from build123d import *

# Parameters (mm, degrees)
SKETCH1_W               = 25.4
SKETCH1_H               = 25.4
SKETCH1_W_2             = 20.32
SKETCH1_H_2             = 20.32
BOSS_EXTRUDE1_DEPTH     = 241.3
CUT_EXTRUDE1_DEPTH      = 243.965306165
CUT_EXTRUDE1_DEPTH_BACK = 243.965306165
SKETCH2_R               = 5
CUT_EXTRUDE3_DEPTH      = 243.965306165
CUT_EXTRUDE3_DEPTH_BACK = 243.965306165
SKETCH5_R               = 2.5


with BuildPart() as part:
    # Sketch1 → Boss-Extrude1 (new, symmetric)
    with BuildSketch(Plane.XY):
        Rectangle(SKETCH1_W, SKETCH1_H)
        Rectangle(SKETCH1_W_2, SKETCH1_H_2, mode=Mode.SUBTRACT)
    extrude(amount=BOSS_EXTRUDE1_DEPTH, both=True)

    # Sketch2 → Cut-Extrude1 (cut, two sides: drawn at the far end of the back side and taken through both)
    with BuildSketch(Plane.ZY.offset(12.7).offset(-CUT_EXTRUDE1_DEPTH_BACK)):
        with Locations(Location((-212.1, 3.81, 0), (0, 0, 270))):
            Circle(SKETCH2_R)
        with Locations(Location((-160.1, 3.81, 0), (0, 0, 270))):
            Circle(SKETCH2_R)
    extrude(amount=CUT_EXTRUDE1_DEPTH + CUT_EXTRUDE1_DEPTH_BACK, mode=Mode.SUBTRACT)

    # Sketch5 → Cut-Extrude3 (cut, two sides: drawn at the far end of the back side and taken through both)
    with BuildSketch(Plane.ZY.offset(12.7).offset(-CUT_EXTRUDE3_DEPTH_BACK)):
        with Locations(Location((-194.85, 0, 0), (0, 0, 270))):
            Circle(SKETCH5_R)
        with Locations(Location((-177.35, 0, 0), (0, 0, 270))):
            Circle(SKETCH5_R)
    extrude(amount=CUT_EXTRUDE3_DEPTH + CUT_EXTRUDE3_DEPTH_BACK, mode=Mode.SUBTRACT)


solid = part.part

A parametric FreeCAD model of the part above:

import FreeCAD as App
import Part
import Sketcher

V = App.Vector
Q = App.Units.Quantity

doc = App.newDocument("Part")
body = doc.addObject("PartDesign::Body", "Body")

sketch1 = body.newObject("Sketcher::SketchObject", "Sketch")
sketch1.AttachmentSupport = (doc.getObject("XY_Plane"), [""])
sketch1.MapMode = "FlatFace"
sketch1.addGeometry([
    Part.LineSegment(V(-13, 13, 0), V(-13, -13, 0)),
    Part.LineSegment(V(-13, -13, 0), V(13, -13, 0)),
    Part.LineSegment(V(13, -13, 0), V(13, 13, 0)),
    Part.LineSegment(V(13, 13, 0), V(-13, 13, 0)),
    Part.LineSegment(V(10, -10, 0), V(-10, -10, 0)),
    Part.LineSegment(V(-10, -10, 0), V(-10, 10, 0)),
    Part.LineSegment(V(-10, 10, 0), V(10, 10, 0)),
    Part.LineSegment(V(10, 10, 0), V(10, -10, 0)),
], False)
sketch1.addConstraint([
    Sketcher.Constraint("Coincident", 0, 2, 1, 1),
    Sketcher.Constraint("Coincident", 1, 2, 2, 1),
    Sketcher.Constraint("Coincident", 2, 2, 3, 1),
    Sketcher.Constraint("Coincident", 3, 2, 0, 1),
    Sketcher.Constraint("Coincident", 4, 2, 5, 1),
    Sketcher.Constraint("Coincident", 5, 2, 6, 1),
    Sketcher.Constraint("Coincident", 6, 2, 7, 1),
    Sketcher.Constraint("Coincident", 7, 2, 4, 1),
    Sketcher.Constraint("Vertical", 0),
    Sketcher.Constraint("Horizontal", 1),
    Sketcher.Constraint("Vertical", 2),
    Sketcher.Constraint("Horizontal", 3),
    Sketcher.Constraint("Horizontal", 4),
    Sketcher.Constraint("Vertical", 5),
    Sketcher.Constraint("Horizontal", 6),
    Sketcher.Constraint("Vertical", 7),
    Sketcher.Constraint("Symmetric", 0, 2, 2, 2, -1, 1),
    Sketcher.Constraint("Symmetric", 4, 2, 6, 2, -1, 1),
    Sketcher.Constraint("Equal", 3, 0),
    Sketcher.Constraint("Equal", 6, 5),
    Sketcher.Constraint("DistanceX", 1, 1, 1, 2, Q("1 in")),
    Sketcher.Constraint("DistanceX", 4, 2, 4, 1, Q("0.8 in")),
])
pad1 = body.newObject("PartDesign::Pad", "Pad")
pad1.Profile = sketch1
pad1.Length = Q("19 in")
pad1.Midplane = True

sketch2 = body.newObject("Sketcher::SketchObject", "Sketch001")
sketch2.AttachmentSupport = (doc.getObject("YZ_Plane"), [""])
sketch2.MapMode = "FlatFace"
sketch2.AttachmentOffset = App.Placement(V(0, 0, -0.5 * 25.4), App.Rotation())
sketch2.addGeometry([
    Part.Circle(V(4, -212, 0), V(0, 0, 1), 5),
    Part.Circle(V(4, -160, 0), V(0, 0, 1), 5),
], False)
sketch2.addConstraint([
    Sketcher.Constraint("Equal", 0, 1),
    Sketcher.Constraint("Vertical", 0, 3, 1, 3),
    Sketcher.Constraint("Diameter", 0, Q("10 mm")),
    Sketcher.Constraint("DistanceX", -1, 1, 0, 3, Q("0.15 in")),
    Sketcher.Constraint("DistanceY", 0, 3, -1, 1, Q("212.1 mm")),
    Sketcher.Constraint("DistanceY", 1, 3, -1, 1, Q("160.1 mm")),
])
pocket1 = body.newObject("PartDesign::Pocket", "Pocket")
pocket1.Profile = sketch2
pocket1.Type = "ThroughAll"
pocket1.Midplane = True

sketch3 = body.newObject("Sketcher::SketchObject", "Sketch002")
sketch3.AttachmentSupport = (doc.getObject("YZ_Plane"), [""])
sketch3.MapMode = "FlatFace"
sketch3.AttachmentOffset = App.Placement(V(0, 0, -0.5 * 25.4), App.Rotation())
sketch3.addGeometry([
    Part.Circle(V(0, -194.8, 0), V(0, 0, 1), 2.5),
    Part.Circle(V(0, -177.3, 0), V(0, 0, 1), 2.5),
], False)
sketch3.addConstraint([
    Sketcher.Constraint("Equal", 0, 1),
    Sketcher.Constraint("PointOnObject", 0, 3, -2),
    Sketcher.Constraint("PointOnObject", 1, 3, -2),
    Sketcher.Constraint("Diameter", 0, Q("5 mm")),
    Sketcher.Constraint("DistanceY", 0, 3, -1, 1, Q("194.85 mm")),
    Sketcher.Constraint("DistanceY", 1, 3, -1, 1, Q("177.35 mm")),
])
pocket2 = body.newObject("PartDesign::Pocket", "Pocket001")
pocket2.Profile = sketch3
pocket2.Type = "ThroughAll"
pocket2.Midplane = True

doc.recompute()
